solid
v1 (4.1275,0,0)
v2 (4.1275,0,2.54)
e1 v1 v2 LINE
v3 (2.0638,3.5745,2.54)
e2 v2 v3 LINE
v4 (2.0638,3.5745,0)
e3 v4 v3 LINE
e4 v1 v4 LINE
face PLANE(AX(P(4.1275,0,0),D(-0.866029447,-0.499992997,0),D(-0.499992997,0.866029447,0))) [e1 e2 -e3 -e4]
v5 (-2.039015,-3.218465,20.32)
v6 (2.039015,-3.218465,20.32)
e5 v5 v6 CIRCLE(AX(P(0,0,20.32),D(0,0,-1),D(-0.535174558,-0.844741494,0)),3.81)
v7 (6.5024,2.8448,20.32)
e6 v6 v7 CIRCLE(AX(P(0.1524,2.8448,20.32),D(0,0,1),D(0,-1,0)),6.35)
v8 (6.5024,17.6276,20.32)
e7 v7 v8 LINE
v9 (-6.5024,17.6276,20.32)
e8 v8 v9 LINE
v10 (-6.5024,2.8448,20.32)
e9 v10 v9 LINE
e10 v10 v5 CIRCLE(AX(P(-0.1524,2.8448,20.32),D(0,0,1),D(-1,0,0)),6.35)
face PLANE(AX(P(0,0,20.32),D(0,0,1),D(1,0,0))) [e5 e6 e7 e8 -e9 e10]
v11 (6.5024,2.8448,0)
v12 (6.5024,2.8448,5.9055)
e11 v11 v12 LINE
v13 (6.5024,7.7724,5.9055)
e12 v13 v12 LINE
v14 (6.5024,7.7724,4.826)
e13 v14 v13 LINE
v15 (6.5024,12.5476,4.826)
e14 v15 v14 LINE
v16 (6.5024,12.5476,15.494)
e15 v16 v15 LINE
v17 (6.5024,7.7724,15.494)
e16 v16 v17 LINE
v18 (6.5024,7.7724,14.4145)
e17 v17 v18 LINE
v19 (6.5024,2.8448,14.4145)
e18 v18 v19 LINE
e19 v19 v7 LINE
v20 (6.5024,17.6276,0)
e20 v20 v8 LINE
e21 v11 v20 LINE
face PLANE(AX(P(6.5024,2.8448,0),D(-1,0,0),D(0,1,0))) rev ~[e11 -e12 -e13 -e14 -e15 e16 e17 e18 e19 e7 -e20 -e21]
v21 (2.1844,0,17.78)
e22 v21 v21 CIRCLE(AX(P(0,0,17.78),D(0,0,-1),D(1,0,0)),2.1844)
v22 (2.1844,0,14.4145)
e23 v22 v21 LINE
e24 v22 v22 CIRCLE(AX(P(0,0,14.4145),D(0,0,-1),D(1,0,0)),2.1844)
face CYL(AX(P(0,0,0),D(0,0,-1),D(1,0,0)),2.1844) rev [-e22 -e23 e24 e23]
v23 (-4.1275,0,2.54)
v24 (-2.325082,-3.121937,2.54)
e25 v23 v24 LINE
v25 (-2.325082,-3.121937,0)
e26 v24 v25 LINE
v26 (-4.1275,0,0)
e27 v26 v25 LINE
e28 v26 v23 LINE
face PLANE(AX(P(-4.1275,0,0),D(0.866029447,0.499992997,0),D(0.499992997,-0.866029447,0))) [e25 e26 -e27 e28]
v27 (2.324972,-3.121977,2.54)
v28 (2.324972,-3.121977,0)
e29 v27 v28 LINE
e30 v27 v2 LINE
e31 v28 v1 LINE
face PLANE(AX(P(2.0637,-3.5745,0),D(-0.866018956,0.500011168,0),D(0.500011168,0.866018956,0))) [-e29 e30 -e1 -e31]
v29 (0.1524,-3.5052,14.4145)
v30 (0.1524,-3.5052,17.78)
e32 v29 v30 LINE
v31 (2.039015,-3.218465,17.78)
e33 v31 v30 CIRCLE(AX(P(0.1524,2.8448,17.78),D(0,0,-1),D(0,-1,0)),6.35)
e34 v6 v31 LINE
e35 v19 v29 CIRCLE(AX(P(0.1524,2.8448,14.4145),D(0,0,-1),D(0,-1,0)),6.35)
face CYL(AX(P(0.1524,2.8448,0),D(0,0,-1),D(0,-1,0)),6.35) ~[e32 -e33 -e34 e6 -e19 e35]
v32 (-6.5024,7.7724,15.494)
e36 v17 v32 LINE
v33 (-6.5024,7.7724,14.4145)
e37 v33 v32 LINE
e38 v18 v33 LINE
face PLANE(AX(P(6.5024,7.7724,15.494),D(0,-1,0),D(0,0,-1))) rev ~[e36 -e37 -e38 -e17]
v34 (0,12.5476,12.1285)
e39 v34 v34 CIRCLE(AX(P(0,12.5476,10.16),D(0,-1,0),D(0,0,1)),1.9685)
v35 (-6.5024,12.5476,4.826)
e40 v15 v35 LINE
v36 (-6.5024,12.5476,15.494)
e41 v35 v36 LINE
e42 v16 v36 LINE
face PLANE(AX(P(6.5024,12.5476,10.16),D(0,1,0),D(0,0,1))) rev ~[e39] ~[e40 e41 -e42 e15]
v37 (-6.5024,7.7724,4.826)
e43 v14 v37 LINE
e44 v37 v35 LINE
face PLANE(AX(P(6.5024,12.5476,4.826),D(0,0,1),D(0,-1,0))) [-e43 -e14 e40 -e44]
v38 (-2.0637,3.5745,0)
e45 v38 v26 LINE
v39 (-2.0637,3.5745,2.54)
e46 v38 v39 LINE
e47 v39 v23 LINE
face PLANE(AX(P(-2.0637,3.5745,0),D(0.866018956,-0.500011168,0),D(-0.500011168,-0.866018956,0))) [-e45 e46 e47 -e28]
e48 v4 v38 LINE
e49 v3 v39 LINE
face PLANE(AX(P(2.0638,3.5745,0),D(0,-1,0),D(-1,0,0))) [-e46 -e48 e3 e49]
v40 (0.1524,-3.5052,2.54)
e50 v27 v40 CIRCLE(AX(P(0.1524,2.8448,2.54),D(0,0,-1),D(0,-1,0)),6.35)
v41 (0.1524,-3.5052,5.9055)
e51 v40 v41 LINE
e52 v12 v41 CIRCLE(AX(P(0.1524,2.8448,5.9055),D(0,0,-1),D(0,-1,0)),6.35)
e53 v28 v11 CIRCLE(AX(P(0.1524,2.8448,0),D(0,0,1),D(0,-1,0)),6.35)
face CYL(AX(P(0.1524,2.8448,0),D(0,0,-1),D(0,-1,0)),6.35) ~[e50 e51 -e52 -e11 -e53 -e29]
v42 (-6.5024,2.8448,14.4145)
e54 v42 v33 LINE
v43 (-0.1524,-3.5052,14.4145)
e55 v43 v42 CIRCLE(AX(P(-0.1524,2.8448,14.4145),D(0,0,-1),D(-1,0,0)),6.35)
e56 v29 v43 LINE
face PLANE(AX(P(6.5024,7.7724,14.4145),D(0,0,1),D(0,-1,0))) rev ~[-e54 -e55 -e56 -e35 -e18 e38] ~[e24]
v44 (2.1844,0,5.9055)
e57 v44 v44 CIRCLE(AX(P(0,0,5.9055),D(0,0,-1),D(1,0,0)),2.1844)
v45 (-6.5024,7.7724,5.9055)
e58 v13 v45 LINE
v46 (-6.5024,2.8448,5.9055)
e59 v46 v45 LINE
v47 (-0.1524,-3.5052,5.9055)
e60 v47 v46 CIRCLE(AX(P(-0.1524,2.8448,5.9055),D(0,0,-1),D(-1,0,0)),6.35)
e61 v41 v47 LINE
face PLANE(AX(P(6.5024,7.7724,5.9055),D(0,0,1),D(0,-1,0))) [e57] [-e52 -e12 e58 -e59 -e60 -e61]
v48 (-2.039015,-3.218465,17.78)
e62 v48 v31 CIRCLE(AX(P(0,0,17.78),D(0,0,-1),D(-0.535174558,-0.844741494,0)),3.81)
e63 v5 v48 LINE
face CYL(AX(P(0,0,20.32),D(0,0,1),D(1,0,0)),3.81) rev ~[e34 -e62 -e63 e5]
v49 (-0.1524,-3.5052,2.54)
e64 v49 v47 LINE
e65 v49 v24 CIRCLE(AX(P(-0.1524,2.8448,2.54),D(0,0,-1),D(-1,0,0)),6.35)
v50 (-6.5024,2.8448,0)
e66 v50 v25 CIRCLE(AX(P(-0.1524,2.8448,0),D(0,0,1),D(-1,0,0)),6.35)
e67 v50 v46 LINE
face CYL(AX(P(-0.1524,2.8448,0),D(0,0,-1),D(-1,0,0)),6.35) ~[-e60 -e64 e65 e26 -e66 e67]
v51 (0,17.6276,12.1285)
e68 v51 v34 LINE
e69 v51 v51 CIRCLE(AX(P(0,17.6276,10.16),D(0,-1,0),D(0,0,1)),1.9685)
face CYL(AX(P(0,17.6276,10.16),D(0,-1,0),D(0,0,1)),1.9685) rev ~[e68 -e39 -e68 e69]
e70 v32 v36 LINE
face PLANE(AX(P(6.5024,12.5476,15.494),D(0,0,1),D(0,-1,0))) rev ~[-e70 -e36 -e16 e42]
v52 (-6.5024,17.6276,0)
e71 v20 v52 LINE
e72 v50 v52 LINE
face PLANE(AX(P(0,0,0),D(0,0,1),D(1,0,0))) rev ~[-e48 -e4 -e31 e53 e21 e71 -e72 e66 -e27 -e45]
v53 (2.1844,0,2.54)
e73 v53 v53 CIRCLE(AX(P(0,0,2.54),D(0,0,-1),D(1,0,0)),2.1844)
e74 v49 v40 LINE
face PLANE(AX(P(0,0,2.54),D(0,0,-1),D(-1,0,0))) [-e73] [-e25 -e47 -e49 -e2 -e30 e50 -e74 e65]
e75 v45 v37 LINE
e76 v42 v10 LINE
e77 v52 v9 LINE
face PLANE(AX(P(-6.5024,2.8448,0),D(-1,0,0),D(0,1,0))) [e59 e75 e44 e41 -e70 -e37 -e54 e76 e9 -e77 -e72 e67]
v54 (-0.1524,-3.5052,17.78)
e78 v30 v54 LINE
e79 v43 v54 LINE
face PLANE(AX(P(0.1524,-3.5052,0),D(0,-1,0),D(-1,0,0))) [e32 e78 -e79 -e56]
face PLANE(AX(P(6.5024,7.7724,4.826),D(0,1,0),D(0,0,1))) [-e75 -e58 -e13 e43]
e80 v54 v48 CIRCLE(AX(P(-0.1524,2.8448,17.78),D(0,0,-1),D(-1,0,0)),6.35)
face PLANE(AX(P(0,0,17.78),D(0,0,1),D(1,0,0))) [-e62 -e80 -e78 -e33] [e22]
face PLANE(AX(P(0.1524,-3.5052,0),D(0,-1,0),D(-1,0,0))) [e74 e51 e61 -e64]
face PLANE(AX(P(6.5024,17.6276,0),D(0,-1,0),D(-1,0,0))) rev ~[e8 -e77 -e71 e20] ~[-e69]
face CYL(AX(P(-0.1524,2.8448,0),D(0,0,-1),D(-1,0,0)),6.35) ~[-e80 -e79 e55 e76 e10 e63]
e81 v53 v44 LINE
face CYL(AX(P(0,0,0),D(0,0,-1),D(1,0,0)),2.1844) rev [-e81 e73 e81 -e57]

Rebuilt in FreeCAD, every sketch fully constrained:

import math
import FreeCAD as App
import Part
import Sketcher

V = App.Vector
Q = App.Units.Quantity

doc = App.newDocument("Part")
body = doc.addObject("PartDesign::Body", "Body")

sketch1 = doc.addObject("Sketcher::SketchObject", "Sketch")
body.addObject(sketch1)
sketch1.AttachmentSupport = (doc.XY_Plane, [""])
sketch1.MapMode = "FlatFace"
sketch1.addGeometry(Part.ArcOfCircle(Part.Circle(V(0.15, 2.84, 0), V(0, 0, 1), 6.35), math.radians(-90), math.radians(0)), False)
sketch1.addGeometry(Part.LineSegment(V(6.5, 2.84, 0), V(6.5, 17.63, 0)), False)
sketch1.addGeometry(Part.LineSegment(V(6.5, 17.63, 0), V(-6.5, 17.63, 0)), False)
sketch1.addGeometry(Part.LineSegment(V(-6.5, 17.63, 0), V(-6.5, 2.84, 0)), False)
sketch1.addGeometry(Part.ArcOfCircle(Part.Circle(V(-0.15, 2.84, 0), V(0, 0, 1), 6.35), math.radians(180), math.radians(270)), False)
sketch1.addGeometry(Part.LineSegment(V(-0.15, -3.51, 0), V(0.15, -3.51, 0)), False)
sketch1.addGeometry(Part.Circle(V(0, 0, 0), V(0, 0, 1), 2.18), False)
sketch1.addConstraint(Sketcher.Constraint("Tangent", 0, 2, 1, 1))
sketch1.addConstraint(Sketcher.Constraint("Coincident", 1, 2, 2, 1))
sketch1.addConstraint(Sketcher.Constraint("Coincident", 2, 2, 3, 1))
sketch1.addConstraint(Sketcher.Constraint("Tangent", 3, 2, 4, 1))
sketch1.addConstraint(Sketcher.Constraint("Tangent", 4, 2, 5, 1))
sketch1.addConstraint(Sketcher.Constraint("Tangent", 5, 2, 0, 1))
sketch1.addConstraint(Sketcher.Constraint("Vertical", 1))
sketch1.addConstraint(Sketcher.Constraint("Horizontal", 2))
sketch1.addConstraint(Sketcher.Constraint("Vertical", 3))
sketch1.addConstraint(Sketcher.Constraint("Horizontal", 5))
sketch1.addConstraint(Sketcher.Constraint("Coincident", 6, 3, -1, 1))
sketch1.addConstraint(Sketcher.Constraint("Equal", 0, 4))
sketch1.addConstraint(Sketcher.Constraint("Radius", 0, Q("0.25 in")))
sketch1.addConstraint(Sketcher.Constraint("Diameter", 6, Q("0.172 in")))
sketch1.addConstraint(Sketcher.Constraint("DistanceX", 2, 2, 2, 1, Q("0.512 in")))
sketch1.addConstraint(Sketcher.Constraint("DistanceY", -1, 1, 1, 2, Q("0.694 in")))
sketch1.addConstraint(Sketcher.Constraint("DistanceY", 1, 1, 1, 2, Q("0.582 in")))
sketch1.addConstraint(Sketcher.Constraint("DistanceX", -1, 1, 0, 3, Q("0.006 in")))
pad1 = doc.addObject("PartDesign::Pad", "Pad")
body.addObject(pad1)
pad1.Profile = sketch1
pad1.Length = Q("0.8 in")

sketch2 = doc.addObject("Sketcher::SketchObject", "Sketch001")
body.addObject(sketch2)
sketch2.AttachmentSupport = (doc.YZ_Plane, [""])
sketch2.MapMode = "FlatFace"
sketch2.AttachmentOffset = App.Placement(V(0, 0, 0.256 * 25.4), App.Rotation())
sketch2.addGeometry(Part.LineSegment(V(-3.5, 5.9, 0), V(7.8, 5.9, 0)), False)
sketch2.addGeometry(Part.LineSegment(V(7.8, 5.9, 0), V(7.8, 4.8, 0)), False)
sketch2.addGeometry(Part.LineSegment(V(7.8, 4.8, 0), V(12.5, 4.8, 0)), False)
sketch2.addGeometry(Part.LineSegment(V(12.5, 4.8, 0), V(12.5, 15.5, 0)), False)
sketch2.addGeometry(Part.LineSegment(V(12.5, 15.5, 0), V(7.8, 15.5, 0)), False)
sketch2.addGeometry(Part.LineSegment(V(7.8, 15.5, 0), V(7.8, 14.4, 0)), False)
sketch2.addGeometry(Part.LineSegment(V(7.8, 14.4, 0), V(-3.5, 14.4, 0)), False)
sketch2.addGeometry(Part.LineSegment(V(-3.5, 14.4, 0), V(-3.5, 5.9, 0)), False)
sketch2.addConstraint(Sketcher.Constraint("Coincident", 0, 2, 1, 1))
sketch2.addConstraint(Sketcher.Constraint("Coincident", 1, 2, 2, 1))
sketch2.addConstraint(Sketcher.Constraint("Coincident", 2, 2, 3, 1))
sketch2.addConstraint(Sketcher.Constraint("Coincident", 3, 2, 4, 1))
sketch2.addConstraint(Sketcher.Constraint("Coincident", 4, 2, 5, 1))
sketch2.addConstraint(Sketcher.Constraint("Coincident", 5, 2, 6, 1))
sketch2.addConstraint(Sketcher.Constraint("Coincident", 6, 2, 7, 1))
sketch2.addConstraint(Sketcher.Constraint("Coincident", 7, 2, 0, 1))
sketch2.addConstraint(Sketcher.Constraint("Horizontal", 0))
sketch2.addConstraint(Sketcher.Constraint("Vertical", 1))
sketch2.addConstraint(Sketcher.Constraint("Horizontal", 2))
sketch2.addConstraint(Sketcher.Constraint("Vertical", 3))
sketch2.addConstraint(Sketcher.Constraint("Horizontal", 4))
sketch2.addConstraint(Sketcher.Constraint("Vertical", 5))
sketch2.addConstraint(Sketcher.Constraint("Horizontal", 6))
sketch2.addConstraint(Sketcher.Constraint("Vertical", 7))
sketch2.addConstraint(Sketcher.Constraint("Vertical", 1, 2, 4, 2))
sketch2.addConstraint(Sketcher.Constraint("Equal", 1, 5))
sketch2.addConstraint(Sketcher.Constraint("DistanceX", -1, 1, 0, 2, Q("0.306 in")))
sketch2.addConstraint(Sketcher.Constraint("DistanceY", 3, 1, 3, 2, Q("0.42 in")))
sketch2.addConstraint(Sketcher.Constraint("DistanceX", 0, 1, 0, 2, Q("0.444 in")))
sketch2.addConstraint(Sketcher.Constraint("DistanceX", 2, 1, 2, 2, Q("0.188 in")))
sketch2.addConstraint(Sketcher.Constraint("DistanceY", 7, 2, 7, 1, Q("0.335 in")))
sketch2.addConstraint(Sketcher.Constraint("DistanceY", -1, 1, 1, 2, Q("0.19 in")))
pocket1 = doc.addObject("PartDesign::Pocket", "Pocket")
body.addObject(pocket1)
pocket1.Profile = sketch2
pocket1.Type = "ThroughAll"

sketch3 = doc.addObject("Sketcher::SketchObject", "Sketch002")
body.addObject(sketch3)
sketch3.AttachmentSupport = (doc.XZ_Plane, [""])
sketch3.MapMode = "FlatFace"
sketch3.AttachmentOffset = App.Placement(V(0, 0, -0.694 * 25.4), App.Rotation())
sketch3.addGeometry(Part.Circle(V(0, 10.2, 0), V(0, 0, 1), 2), False)
sketch3.addConstraint(Sketcher.Constraint("PointOnObject", 0, 3, -2))
sketch3.addConstraint(Sketcher.Constraint("Diameter", 0, Q("0.155 in")))
sketch3.addConstraint(Sketcher.Constraint("DistanceY", -1, 1, 0, 3, Q("0.4 in")))
doc.recompute()
hole = doc.addObject("PartDesign::Hole", "Hole")
body.addObject(hole)
hole.Profile = sketch3
hole.ThreadType = "None"
hole.Diameter = Q("0.155 in")
hole.DepthType = "ThroughAll"
hole.Reversed = True

sketch4 = doc.addObject("Sketcher::SketchObject", "Sketch003")
body.addObject(sketch4)
sketch4.AttachmentSupport = (doc.XY_Plane, [""])
sketch4.MapMode = "FlatFace"
sketch4.AttachmentOffset = App.Placement(V(0, 0, 0.8 * 25.4), App.Rotation())
sketch4.addGeometry(Part.Circle(V(0, 0, 0), V(0, 0, 1), 3.8), False)
sketch4.addConstraint(Sketcher.Constraint("Coincident", 0, 3, -1, 1))
sketch4.addConstraint(Sketcher.Constraint("Diameter", 0, Q("0.3 in")))
pocket2 = doc.addObject("PartDesign::Pocket", "Pocket001")
body.addObject(pocket2)
pocket2.Profile = sketch4
pocket2.Length = Q("0.1 in")

sketch5 = doc.addObject("Sketcher::SketchObject", "Sketch004")
body.addObject(sketch5)
sketch5.AttachmentSupport = (doc.XY_Plane, [""])
sketch5.MapMode = "FlatFace"
sketch5.addGeometry(Part.LineSegment(V(2.1, 3.6, 0), V(4.1, 0, 0)), False)
sketch5.addGeometry(Part.LineSegment(V(4.1, 0, 0), V(2.1, -3.6, 0)), False)
sketch5.addGeometry(Part.LineSegment(V(2.1, -3.6, 0), V(-2.1, -3.6, 0)), False)
sketch5.addGeometry(Part.LineSegment(V(-2.1, -3.6, 0), V(-4.1, 0, 0)), False)
sketch5.addGeometry(Part.LineSegment(V(-4.1, 0, 0), V(-2.1, 3.6, 0)), False)
sketch5.addGeometry(Part.LineSegment(V(-2.1, 3.6, 0), V(2.1, 3.6, 0)), False)
sketch5.addConstraint(Sketcher.Constraint("Coincident", 0, 2, 1, 1))
sketch5.addConstraint(Sketcher.Constraint("Coincident", 1, 2, 2, 1))
sketch5.addConstraint(Sketcher.Constraint("Coincident", 2, 2, 3, 1))
sketch5.addConstraint(Sketcher.Constraint("Coincident", 3, 2, 4, 1))
sketch5.addConstraint(Sketcher.Constraint("Coincident", 4, 2, 5, 1))
sketch5.addConstraint(Sketcher.Constraint("Coincident", 5, 2, 0, 1))
sketch5.addConstraint(Sketcher.Constraint("Horizontal", 2))
sketch5.addConstraint(Sketcher.Constraint("Horizontal", 5))
sketch5.addConstraint(Sketcher.Constraint("Symmetric", 0, 2, 3, 2, -1, 1))
sketch5.addConstraint(Sketcher.Constraint("Symmetric", 1, 2, 4, 2, -1, 1))
sketch5.addConstraint(Sketcher.Constraint("PointOnObject", 0, 2, -1))
sketch5.addConstraint(Sketcher.Constraint("Parallel", 0, 3))
sketch5.addConstraint(Sketcher.Constraint("Vertical", 2, 2, 4, 2))
sketch5.addConstraint(Sketcher.Constraint("Angle", 0, Q("-60.0005 deg")))
sketch5.addConstraint(Sketcher.Constraint("DistanceX", 3, 2, 0, 2, Q("0.325 in")))
sketch5.addConstraint(Sketcher.Constraint("DistanceX", 2, 2, 2, 1, Q("0.1625 in")))
pocket3 = doc.addObject("PartDesign::Pocket", "Pocket002")
body.addObject(pocket3)
pocket3.Profile = sketch5
pocket3.Length = Q("0.1 in")
pocket3.Reversed = True

doc.recompute()
